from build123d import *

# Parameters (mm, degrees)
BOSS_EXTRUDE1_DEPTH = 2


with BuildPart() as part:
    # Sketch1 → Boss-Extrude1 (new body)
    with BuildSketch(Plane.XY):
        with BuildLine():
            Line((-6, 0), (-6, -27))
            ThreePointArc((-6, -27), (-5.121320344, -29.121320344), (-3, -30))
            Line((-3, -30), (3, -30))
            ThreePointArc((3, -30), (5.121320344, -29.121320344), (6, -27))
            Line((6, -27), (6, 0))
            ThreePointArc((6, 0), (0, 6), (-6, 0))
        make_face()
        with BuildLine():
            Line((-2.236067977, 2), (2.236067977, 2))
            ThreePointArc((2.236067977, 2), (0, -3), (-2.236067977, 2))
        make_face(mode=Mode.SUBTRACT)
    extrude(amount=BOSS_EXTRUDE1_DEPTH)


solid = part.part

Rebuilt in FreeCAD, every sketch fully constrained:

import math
import FreeCAD as App
import Part
import Sketcher

V = App.Vector
Q = App.Units.Quantity

doc = App.newDocument("Part")
body = doc.addObject("PartDesign::Body", "Body")

sketch1 = body.newObject("Sketcher::SketchObject", "Sketch")
sketch1.AttachmentSupport = (doc.getObject("XY_Plane"), [""])
sketch1.MapMode = "FlatFace"
sketch1.addGeometry([
    Part.LineSegment(V(-6, 0, 0), V(-6, -27, 0)),
    Part.ArcOfCircle(Part.Circle(V(-3, -27, 0), V(0, 0, 1), 3), math.radians(180), math.radians(270)),
    Part.LineSegment(V(-3, -30, 0), V(3, -30, 0)),
    Part.ArcOfCircle(Part.Circle(V(3, -27, 0), V(0, 0, 1), 3), math.radians(-90), math.radians(0)),
    Part.LineSegment(V(6, -27, 0), V(6, 0, 0)),
    Part.ArcOfCircle(Part.Circle(V(0, 0, 0), V(0, 0, 1), 6), math.radians(0), math.radians(180)),
    Part.ArcOfCircle(Part.Circle(V(0, 0, 0), V(0, 0, 1), 3), math.radians(138.189685), math.radians(401.810315)),
    Part.LineSegment(V(-2.236068, 2, 0), V(2.236068, 2, 0)),
], False)
sketch1.addConstraint([
    Sketcher.Constraint("Tangent", 0, 2, 1, 1),
    Sketcher.Constraint("Tangent", 1, 2, 2, 1),
    Sketcher.Constraint("Tangent", 2, 2, 3, 1),
    Sketcher.Constraint("Tangent", 3, 2, 4, 1),
    Sketcher.Constraint("Tangent", 4, 2, 5, 1),
    Sketcher.Constraint("Tangent", 5, 2, 0, 1),
    Sketcher.Constraint("Coincident", 6, 1, 7, 1),
    Sketcher.Constraint("Coincident", 7, 2, 6, 2),
    Sketcher.Constraint("Vertical", 0),
    Sketcher.Constraint("Horizontal", 2),
    Sketcher.Constraint("Vertical", 4),
    Sketcher.Constraint("Horizontal", 7),
    Sketcher.Constraint("Coincident", 5, 3, -1, 1),
    Sketcher.Constraint("Coincident", 6, 3, -1, 1),
    Sketcher.Constraint("Equal", 1, 3),
    Sketcher.Constraint("Equal", 3, 6),
    Sketcher.Constraint("Radius", 1, Q("3 mm")),
    Sketcher.Constraint("Radius", 5, Q("6 mm")),
    Sketcher.Constraint("DistanceY", 0, 2, 0, 1, Q("27 mm")),
    Sketcher.Constraint("DistanceY", -1, 1, 6, 1, Q("2 mm")),
])
pad1 = body.newObject("PartDesign::Pad", "Pad")
pad1.Profile = sketch1
pad1.Length = 2

doc.recompute()
